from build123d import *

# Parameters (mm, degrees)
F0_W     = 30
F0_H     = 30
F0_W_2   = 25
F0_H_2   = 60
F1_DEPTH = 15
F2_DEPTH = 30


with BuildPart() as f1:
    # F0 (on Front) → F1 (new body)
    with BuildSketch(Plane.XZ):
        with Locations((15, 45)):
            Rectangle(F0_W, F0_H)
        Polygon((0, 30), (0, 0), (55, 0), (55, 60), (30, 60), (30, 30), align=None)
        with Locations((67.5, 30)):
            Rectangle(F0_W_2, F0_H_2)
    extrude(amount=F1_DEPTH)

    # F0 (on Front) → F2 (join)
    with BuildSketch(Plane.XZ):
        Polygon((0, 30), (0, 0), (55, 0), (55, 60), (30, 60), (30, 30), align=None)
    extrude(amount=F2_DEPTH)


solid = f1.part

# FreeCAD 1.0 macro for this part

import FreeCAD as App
import Part
import Sketcher

V = App.Vector
Q = App.Units.Quantity


def add_polygon(sketch, points):
    """Adds a closed chain of lines whose ends are joined by coincident constraints."""
    first, n = sketch.GeometryCount, len(points)
    for a, b in zip(points, points[1:] + points[:1]):
        sketch.addGeometry(Part.LineSegment(App.Vector(*a, 0), App.Vector(*b, 0)), False)
    for i in range(n):
        sketch.addConstraint(Sketcher.Constraint("Coincident", first + i, 2, first + (i + 1) % n, 1))

doc = App.newDocument("Part")
params = doc.addObject("Spreadsheet::Sheet", "Params")
for row, (alias, value) in enumerate([
    ("sketch1_width", "80 mm"),
    ("sketch1_height", "60 mm"),
    ("pad1_length", "15 mm"),
    ("sketch2_width", "55 mm"),
    ("sketch2_width2", "25 mm"),
    ("pad2_length", "30 mm"),
], start=1):
    params.set(f"A{row}", alias)
    params.set(f"B{row}", "=" + value)
    params.setAlias(f"B{row}", alias)

body = doc.addObject("PartDesign::Body", "Body")

# Sketch on XZ plane
sketch1 = doc.addObject("Sketcher::SketchObject", "Sketch")
body.addObject(sketch1)
sketch1.AttachmentSupport = (doc.XZ_Plane, [""])
sketch1.MapMode = "FlatFace"
add_polygon(sketch1, [(0, 60), (0, 0), (80, 0), (80, 60)])  # lines 0-3
sketch1.addConstraint(Sketcher.Constraint("Vertical", 0))
sketch1.addConstraint(Sketcher.Constraint("Horizontal", 1))
sketch1.addConstraint(Sketcher.Constraint("Vertical", 2))
sketch1.addConstraint(Sketcher.Constraint("Horizontal", 3))
sketch1.addConstraint(Sketcher.Constraint("Coincident", 0, 2, -1, 1))
sketch1.addConstraint(Sketcher.Constraint("DistanceX", 1, 1, 1, 2, Q("80 mm")))
sketch1.addConstraint(Sketcher.Constraint("DistanceY", 0, 2, 0, 1, Q("60 mm")))
sketch1.setExpression("Constraints[9]", "Params.sketch1_width")
sketch1.setExpression("Constraints[10]", "Params.sketch1_height")
pad1 = doc.addObject("PartDesign::Pad", "Pad")
body.addObject(pad1)
pad1.Profile = sketch1
pad1.setExpression("Length", "Params.pad1_length")

# Sketch on XZ plane
sketch2 = doc.addObject("Sketcher::SketchObject", "Sketch001")
body.addObject(sketch2)
sketch2.AttachmentSupport = (doc.XZ_Plane, [""])
sketch2.MapMode = "FlatFace"
add_polygon(sketch2, [(0, 30), (0, 0), (55, 0), (55, 60), (30, 60), (30, 30)])  # lines 0-5
sketch2.addConstraint(Sketcher.Constraint("Vertical", 0))
sketch2.addConstraint(Sketcher.Constraint("Horizontal", 1))
sketch2.addConstraint(Sketcher.Constraint("Vertical", 2))
sketch2.addConstraint(Sketcher.Constraint("Horizontal", 3))
sketch2.addConstraint(Sketcher.Constraint("Vertical", 4))
sketch2.addConstraint(Sketcher.Constraint("Horizontal", 5))
sketch2.addConstraint(Sketcher.Constraint("Coincident", 0, 2, -1, 1))
sketch2.addConstraint(Sketcher.Constraint("Equal", 5, 0))
sketch2.addConstraint(Sketcher.Constraint("Equal", 0, 4))
sketch2.addConstraint(Sketcher.Constraint("DistanceX", 1, 1, 1, 2, Q("55 mm")))
sketch2.addConstraint(Sketcher.Constraint("DistanceX", 3, 2, 3, 1, Q("25 mm")))
sketch2.setExpression("Constraints[15]", "Params.sketch2_width")
sketch2.setExpression("Constraints[16]", "Params.sketch2_width2")
pad2 = doc.addObject("PartDesign::Pad", "Pad001")
body.addObject(pad2)
pad2.Profile = sketch2
pad2.setExpression("Length", "Params.pad2_length")

doc.recompute()
